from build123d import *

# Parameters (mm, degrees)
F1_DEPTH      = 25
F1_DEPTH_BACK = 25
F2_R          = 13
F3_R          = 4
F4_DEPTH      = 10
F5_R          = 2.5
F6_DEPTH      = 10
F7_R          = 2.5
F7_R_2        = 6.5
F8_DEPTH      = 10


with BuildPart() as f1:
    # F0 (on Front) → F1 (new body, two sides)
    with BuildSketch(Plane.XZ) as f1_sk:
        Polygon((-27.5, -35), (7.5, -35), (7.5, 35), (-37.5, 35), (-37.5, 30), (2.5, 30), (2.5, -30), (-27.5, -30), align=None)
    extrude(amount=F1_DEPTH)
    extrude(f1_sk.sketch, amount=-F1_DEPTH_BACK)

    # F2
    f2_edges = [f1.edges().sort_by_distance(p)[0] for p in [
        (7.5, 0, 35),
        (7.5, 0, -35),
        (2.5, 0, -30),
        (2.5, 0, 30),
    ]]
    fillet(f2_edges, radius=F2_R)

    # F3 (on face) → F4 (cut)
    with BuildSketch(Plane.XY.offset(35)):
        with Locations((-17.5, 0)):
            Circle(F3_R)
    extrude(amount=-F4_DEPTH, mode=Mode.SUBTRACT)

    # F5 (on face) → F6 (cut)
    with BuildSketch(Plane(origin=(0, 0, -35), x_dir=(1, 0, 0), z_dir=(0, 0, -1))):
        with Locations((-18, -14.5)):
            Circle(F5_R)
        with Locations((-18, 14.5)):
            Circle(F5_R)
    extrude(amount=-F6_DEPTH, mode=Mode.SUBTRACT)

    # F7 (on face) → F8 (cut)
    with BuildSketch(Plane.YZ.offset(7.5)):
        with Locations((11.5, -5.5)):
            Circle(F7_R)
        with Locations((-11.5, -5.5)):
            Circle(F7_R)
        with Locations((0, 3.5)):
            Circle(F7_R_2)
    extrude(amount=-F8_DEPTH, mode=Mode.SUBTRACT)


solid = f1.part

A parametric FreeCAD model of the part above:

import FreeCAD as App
import Part
import Sketcher
from FreeCAD import Vector


def edges_at(feature, points):
    """Names of the edges that pass closest to the given points."""
    edges = feature.Shape.Edges
    near = lambda p: min(range(len(edges)), key=lambda i: edges[i].distToShape(Part.Vertex(*p))[0])
    return sorted({f"Edge{near(p) + 1}" for p in points})

doc = App.newDocument("Part")
body = doc.addObject("PartDesign::Body", "Body")

# Sketch on XZ plane
sketch1 = body.newObject("Sketcher::SketchObject", "Sketch")
sketch1.AttachmentSupport = (doc.getObject("XZ_Plane"), [""])
sketch1.MapMode = "FlatFace"
sketch1.addGeometry(Part.LineSegment(Vector(-28, -35, 0), Vector(8, -35, 0)), False)
sketch1.addGeometry(Part.LineSegment(Vector(8, -35, 0), Vector(8, 35, 0)), False)
sketch1.addGeometry(Part.LineSegment(Vector(8, 35, 0), Vector(-38, 35, 0)), False)
sketch1.addGeometry(Part.LineSegment(Vector(-38, 35, 0), Vector(-38, 30, 0)), False)
sketch1.addGeometry(Part.LineSegment(Vector(-38, 30, 0), Vector(2, 30, 0)), False)
sketch1.addGeometry(Part.LineSegment(Vector(2, 30, 0), Vector(2, -30, 0)), False)
sketch1.addGeometry(Part.LineSegment(Vector(2, -30, 0), Vector(-28, -30, 0)), False)
sketch1.addGeometry(Part.LineSegment(Vector(-28, -30, 0), Vector(-28, -35, 0)), False)
sketch1.addConstraint(Sketcher.Constraint("Coincident", 0, 2, 1, 1))
sketch1.addConstraint(Sketcher.Constraint("Coincident", 1, 2, 2, 1))
sketch1.addConstraint(Sketcher.Constraint("Coincident", 2, 2, 3, 1))
sketch1.addConstraint(Sketcher.Constraint("Coincident", 3, 2, 4, 1))
sketch1.addConstraint(Sketcher.Constraint("Coincident", 4, 2, 5, 1))
sketch1.addConstraint(Sketcher.Constraint("Coincident", 5, 2, 6, 1))
sketch1.addConstraint(Sketcher.Constraint("Coincident", 6, 2, 7, 1))
sketch1.addConstraint(Sketcher.Constraint("Coincident", 7, 2, 0, 1))
sketch1.addConstraint(Sketcher.Constraint("Horizontal", 0))
sketch1.addConstraint(Sketcher.Constraint("Vertical", 1))
sketch1.addConstraint(Sketcher.Constraint("Horizontal", 2))
sketch1.addConstraint(Sketcher.Constraint("Vertical", 3))
sketch1.addConstraint(Sketcher.Constraint("Horizontal", 4))
sketch1.addConstraint(Sketcher.Constraint("Vertical", 5))
sketch1.addConstraint(Sketcher.Constraint("Horizontal", 6))
sketch1.addConstraint(Sketcher.Constraint("Vertical", 7))
sketch1.addConstraint(Sketcher.Constraint("Equal", 3, 7))
sketch1.addConstraint(Sketcher.Constraint("DistanceX", 0, 1, 0, 2, 35.0))
sketch1.addConstraint(Sketcher.Constraint("DistanceX", 2, 2, 2, 1, 45.0))
sketch1.addConstraint(Sketcher.Constraint("DistanceX", 4, 1, 4, 2, 40.0))
sketch1.addConstraint(Sketcher.Constraint("DistanceY", 1, 1, 1, 2, 70.0))
sketch1.addConstraint(Sketcher.Constraint("DistanceY", 3, 2, 3, 1, 5.0))
sketch1.addConstraint(Sketcher.Constraint("DistanceY", 0, 2, -1, 1, 35.0))
sketch1.addConstraint(Sketcher.Constraint("DistanceX", -1, 1, 0, 2, 7.5))
pad1 = body.newObject("PartDesign::Pad", "Pad")
pad1.Profile = sketch1
pad1.Type = "TwoLengths"
pad1.Length = 25
pad1.Length2 = 25
doc.recompute()

fillet = body.newObject("PartDesign::Fillet", "Fillet")
fillet.Base = (pad1, edges_at(pad1, [
    (7.5, 0, 35),
    (7.5, 0, -35),
    (2.5, 0, -30),
    (2.5, 0, 30),
]))
fillet.Radius = 13

# Sketch on XY plane
sketch2 = body.newObject("Sketcher::SketchObject", "Sketch001")
sketch2.AttachmentSupport = (doc.getObject("XY_Plane"), [""])
sketch2.MapMode = "FlatFace"
sketch2.AttachmentOffset = App.Placement(Vector(0, 0, 35), App.Rotation())
sketch2.addGeometry(Part.Circle(Vector(-17.5, 0, 0), Vector(0, 0, 1), 4), False)
sketch2.addConstraint(Sketcher.Constraint("PointOnObject", 0, 3, -1))
sketch2.addConstraint(Sketcher.Constraint("Diameter", 0, 8.0))
sketch2.addConstraint(Sketcher.Constraint("DistanceX", 0, 3, -1, 1, 17.5))
pocket1 = body.newObject("PartDesign::Pocket", "Pocket")
pocket1.Profile = sketch2
pocket1.Length = 10

# Sketch on XY plane
sketch3 = body.newObject("Sketcher::SketchObject", "Sketch002")
sketch3.AttachmentSupport = (doc.getObject("XY_Plane"), [""])
sketch3.MapMode = "FlatFace"
sketch3.AttachmentOffset = App.Placement(Vector(0, 0, -35), App.Rotation())
sketch3.addGeometry(Part.Circle(Vector(-18, 14.5, 0), Vector(0, 0, 1), 2.5), False)
sketch3.addGeometry(Part.Circle(Vector(-18, -14.5, 0), Vector(0, 0, 1), 2.5), False)
sketch3.addConstraint(Sketcher.Constraint("Equal", 0, 1))
sketch3.addConstraint(Sketcher.Constraint("Symmetric", 0, 3, 1, 3, -1))
sketch3.addConstraint(Sketcher.Constraint("Diameter", 0, 5.0))
sketch3.addConstraint(Sketcher.Constraint("DistanceX", 0, 3, -1, 1, 18.0))
sketch3.addConstraint(Sketcher.Constraint("DistanceY", 1, 3, 0, 3, 29.0))
pocket2 = body.newObject("PartDesign::Pocket", "Pocket001")
pocket2.Profile = sketch3
pocket2.Length = 10
pocket2.Reversed = True

# Sketch on YZ plane
sketch4 = body.newObject("Sketcher::SketchObject", "Sketch003")
sketch4.AttachmentSupport = (doc.getObject("YZ_Plane"), [""])
sketch4.MapMode = "FlatFace"
sketch4.AttachmentOffset = App.Placement(Vector(0, 0, 7.5), App.Rotation())
sketch4.addGeometry(Part.Circle(Vector(11.5, -5.5, 0), Vector(0, 0, 1), 2.5), False)
sketch4.addGeometry(Part.Circle(Vector(-11.5, -5.5, 0), Vector(0, 0, 1), 2.5), False)
sketch4.addGeometry(Part.Circle(Vector(0, 3.5, 0), Vector(0, 0, 1), 6.5), False)
sketch4.addConstraint(Sketcher.Constraint("Equal", 0, 1))
sketch4.addConstraint(Sketcher.Constraint("Symmetric", 0, 3, 1, 3, -2))
sketch4.addConstraint(Sketcher.Constraint("PointOnObject", 2, 3, -2))
sketch4.addConstraint(Sketcher.Constraint("Diameter", 0, 5.0))
sketch4.addConstraint(Sketcher.Constraint("Diameter", 2, 13.0))
sketch4.addConstraint(Sketcher.Constraint("DistanceX", 1, 3, 0, 3, 23.0))
sketch4.addConstraint(Sketcher.Constraint("DistanceY", 0, 3, 2, 3, 9.0))
sketch4.addConstraint(Sketcher.Constraint("DistanceY", 0, 3, -1, 1, 5.5))
pocket3 = body.newObject("PartDesign::Pocket", "Pocket002")
pocket3.Profile = sketch4
pocket3.Length = 10

doc.recompute()
